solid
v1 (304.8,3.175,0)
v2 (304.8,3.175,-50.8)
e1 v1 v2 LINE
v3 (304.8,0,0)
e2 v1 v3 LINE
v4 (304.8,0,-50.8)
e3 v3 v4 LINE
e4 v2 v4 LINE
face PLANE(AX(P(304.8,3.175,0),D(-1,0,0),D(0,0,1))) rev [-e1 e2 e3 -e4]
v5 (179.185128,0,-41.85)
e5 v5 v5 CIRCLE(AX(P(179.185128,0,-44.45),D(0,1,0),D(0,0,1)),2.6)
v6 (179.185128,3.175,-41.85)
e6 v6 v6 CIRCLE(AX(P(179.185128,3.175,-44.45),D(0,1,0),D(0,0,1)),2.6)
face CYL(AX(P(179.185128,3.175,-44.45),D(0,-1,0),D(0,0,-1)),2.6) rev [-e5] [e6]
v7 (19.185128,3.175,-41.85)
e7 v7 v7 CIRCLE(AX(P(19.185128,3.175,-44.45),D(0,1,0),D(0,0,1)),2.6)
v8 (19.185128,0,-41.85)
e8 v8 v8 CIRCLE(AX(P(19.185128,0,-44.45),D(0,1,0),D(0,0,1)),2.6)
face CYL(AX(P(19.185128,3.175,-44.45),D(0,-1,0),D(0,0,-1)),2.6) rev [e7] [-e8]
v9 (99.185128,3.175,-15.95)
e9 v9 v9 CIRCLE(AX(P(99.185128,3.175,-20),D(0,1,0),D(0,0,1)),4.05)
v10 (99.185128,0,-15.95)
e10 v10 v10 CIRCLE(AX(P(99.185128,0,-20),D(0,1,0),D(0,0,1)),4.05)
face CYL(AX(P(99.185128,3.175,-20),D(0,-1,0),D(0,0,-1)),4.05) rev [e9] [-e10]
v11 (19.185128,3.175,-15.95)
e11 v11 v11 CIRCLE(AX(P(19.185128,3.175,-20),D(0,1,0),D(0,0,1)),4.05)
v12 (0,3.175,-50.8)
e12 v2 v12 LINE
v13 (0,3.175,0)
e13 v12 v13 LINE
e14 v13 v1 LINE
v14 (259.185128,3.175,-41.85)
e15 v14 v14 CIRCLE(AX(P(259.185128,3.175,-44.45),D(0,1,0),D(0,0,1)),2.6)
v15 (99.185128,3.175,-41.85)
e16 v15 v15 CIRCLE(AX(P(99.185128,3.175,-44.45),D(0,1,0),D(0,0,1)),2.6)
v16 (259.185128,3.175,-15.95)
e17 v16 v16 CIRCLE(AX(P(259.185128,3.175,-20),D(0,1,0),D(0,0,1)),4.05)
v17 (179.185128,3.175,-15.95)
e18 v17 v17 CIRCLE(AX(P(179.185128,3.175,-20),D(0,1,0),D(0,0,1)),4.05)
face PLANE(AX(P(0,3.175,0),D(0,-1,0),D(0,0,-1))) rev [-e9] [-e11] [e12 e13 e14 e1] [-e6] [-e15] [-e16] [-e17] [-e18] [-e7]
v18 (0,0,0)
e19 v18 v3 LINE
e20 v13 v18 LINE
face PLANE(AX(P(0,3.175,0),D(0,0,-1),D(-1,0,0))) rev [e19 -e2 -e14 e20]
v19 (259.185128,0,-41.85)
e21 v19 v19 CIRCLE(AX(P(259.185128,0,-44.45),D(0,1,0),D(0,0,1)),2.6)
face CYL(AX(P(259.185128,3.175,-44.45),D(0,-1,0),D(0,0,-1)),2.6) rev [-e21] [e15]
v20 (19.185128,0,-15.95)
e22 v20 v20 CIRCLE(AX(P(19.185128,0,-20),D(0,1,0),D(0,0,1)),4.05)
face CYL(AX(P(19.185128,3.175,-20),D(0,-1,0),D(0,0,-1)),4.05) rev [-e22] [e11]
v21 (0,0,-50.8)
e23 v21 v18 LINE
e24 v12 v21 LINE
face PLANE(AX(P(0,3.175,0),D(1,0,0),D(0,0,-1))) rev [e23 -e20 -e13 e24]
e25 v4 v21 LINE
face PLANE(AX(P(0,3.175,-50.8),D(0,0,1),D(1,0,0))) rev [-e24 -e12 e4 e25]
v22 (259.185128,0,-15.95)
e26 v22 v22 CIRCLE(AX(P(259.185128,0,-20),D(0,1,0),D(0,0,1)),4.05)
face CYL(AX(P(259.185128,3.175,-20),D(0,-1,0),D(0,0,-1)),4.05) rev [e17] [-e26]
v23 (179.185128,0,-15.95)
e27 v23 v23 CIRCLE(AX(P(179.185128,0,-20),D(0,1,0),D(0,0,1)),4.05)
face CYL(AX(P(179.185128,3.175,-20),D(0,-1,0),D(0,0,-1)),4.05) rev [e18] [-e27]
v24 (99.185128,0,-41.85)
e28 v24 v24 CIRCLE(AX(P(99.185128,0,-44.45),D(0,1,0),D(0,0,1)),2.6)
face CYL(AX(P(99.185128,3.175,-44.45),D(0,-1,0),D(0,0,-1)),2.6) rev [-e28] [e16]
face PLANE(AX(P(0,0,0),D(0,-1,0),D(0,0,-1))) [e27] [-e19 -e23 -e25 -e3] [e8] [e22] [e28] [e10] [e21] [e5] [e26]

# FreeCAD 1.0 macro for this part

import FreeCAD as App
import Part
import Sketcher
Q = App.Units.Quantity


def add_polygon(sketch, points):
    """Adds a closed chain of lines whose ends are joined by coincident constraints."""
    first, n = sketch.GeometryCount, len(points)
    for a, b in zip(points, points[1:] + points[:1]):
        sketch.addGeometry(Part.LineSegment(App.Vector(*a, 0), App.Vector(*b, 0)), False)
    for i in range(n):
        sketch.addConstraint(Sketcher.Constraint("Coincident", first + i, 2, first + (i + 1) % n, 1))

doc = App.newDocument("Part")
body = doc.addObject("PartDesign::Body", "Body")

sketch1 = body.newObject("Sketcher::SketchObject", "Sketch")
sketch1.AttachmentSupport = (doc.getObject("XZ_Plane"), [""])
sketch1.MapMode = "FlatFace"
add_polygon(sketch1, [(0, -50.8), (0, 0), (304.8, 0), (304.8, -50.8)])
sketch1.addGeometry(Part.Circle(App.Vector(19.2, -20, 0), App.Vector(0, 0, 1), 4), False)
sketch1.addGeometry(Part.Circle(App.Vector(99.2, -20, 0), App.Vector(0, 0, 1), 4), False)
sketch1.addGeometry(Part.Circle(App.Vector(179.2, -20, 0), App.Vector(0, 0, 1), 4), False)
sketch1.addGeometry(Part.Circle(App.Vector(259.2, -20, 0), App.Vector(0, 0, 1), 4), False)
sketch1.addGeometry(Part.Circle(App.Vector(19.2, -44.5, 0), App.Vector(0, 0, 1), 2.6), False)
sketch1.addGeometry(Part.Circle(App.Vector(99.2, -44.5, 0), App.Vector(0, 0, 1), 2.6), False)
sketch1.addGeometry(Part.Circle(App.Vector(179.2, -44.5, 0), App.Vector(0, 0, 1), 2.6), False)
sketch1.addGeometry(Part.Circle(App.Vector(259.2, -44.5, 0), App.Vector(0, 0, 1), 2.6), False)
sketch1.addConstraint(Sketcher.Constraint("Vertical", 0))
sketch1.addConstraint(Sketcher.Constraint("Horizontal", 1))
sketch1.addConstraint(Sketcher.Constraint("Vertical", 2))
sketch1.addConstraint(Sketcher.Constraint("Horizontal", 3))
sketch1.addConstraint(Sketcher.Constraint("Coincident", 0, 2, -1, 1))
sketch1.addConstraint(Sketcher.Constraint("Equal", 4, 5))
sketch1.addConstraint(Sketcher.Constraint("Equal", 5, 6))
sketch1.addConstraint(Sketcher.Constraint("Equal", 6, 7))
sketch1.addConstraint(Sketcher.Constraint("Equal", 8, 9))
sketch1.addConstraint(Sketcher.Constraint("Equal", 9, 10))
sketch1.addConstraint(Sketcher.Constraint("Equal", 10, 11))
sketch1.addConstraint(Sketcher.Constraint("Horizontal", 4, 3, 5, 3))
sketch1.addConstraint(Sketcher.Constraint("Horizontal", 5, 3, 6, 3))
sketch1.addConstraint(Sketcher.Constraint("Horizontal", 6, 3, 7, 3))
sketch1.addConstraint(Sketcher.Constraint("Horizontal", 8, 3, 9, 3))
sketch1.addConstraint(Sketcher.Constraint("Horizontal", 9, 3, 10, 3))
sketch1.addConstraint(Sketcher.Constraint("Horizontal", 10, 3, 11, 3))
sketch1.addConstraint(Sketcher.Constraint("Vertical", 4, 3, 8, 3))
sketch1.addConstraint(Sketcher.Constraint("Vertical", 5, 3, 9, 3))
sketch1.addConstraint(Sketcher.Constraint("Vertical", 6, 3, 10, 3))
sketch1.addConstraint(Sketcher.Constraint("Vertical", 7, 3, 11, 3))
sketch1.addConstraint(Sketcher.Constraint("DistanceX", 1, 1, 1, 2, Q("12 in")))
sketch1.addConstraint(Sketcher.Constraint("DistanceY", 0, 1, 0, 2, Q("2 in")))
sketch1.addConstraint(Sketcher.Constraint("Diameter", 4, 8.1))
sketch1.addConstraint(Sketcher.Constraint("Diameter", 8, 5.2))
sketch1.addConstraint(Sketcher.Constraint("DistanceY", 8, 3, -1, 1, Q("1.75 in")))
sketch1.addConstraint(Sketcher.Constraint("DistanceY", 4, 3, -1, 1, 20.0))
sketch1.addConstraint(Sketcher.Constraint("DistanceX", 4, 3, 5, 3, 80.0))
sketch1.addConstraint(Sketcher.Constraint("DistanceX", 5, 3, 6, 3, 80.0))
sketch1.addConstraint(Sketcher.Constraint("DistanceX", 6, 3, 7, 3, 80.0))
sketch1.addConstraint(Sketcher.Constraint("DistanceX", -1, 1, 4, 3, 19.185128))
pad1 = body.newObject("PartDesign::Pad", "Pad")
pad1.Profile = sketch1
pad1.Length = Q("0.125 in")
pad1.Reversed = True

doc.recompute()
